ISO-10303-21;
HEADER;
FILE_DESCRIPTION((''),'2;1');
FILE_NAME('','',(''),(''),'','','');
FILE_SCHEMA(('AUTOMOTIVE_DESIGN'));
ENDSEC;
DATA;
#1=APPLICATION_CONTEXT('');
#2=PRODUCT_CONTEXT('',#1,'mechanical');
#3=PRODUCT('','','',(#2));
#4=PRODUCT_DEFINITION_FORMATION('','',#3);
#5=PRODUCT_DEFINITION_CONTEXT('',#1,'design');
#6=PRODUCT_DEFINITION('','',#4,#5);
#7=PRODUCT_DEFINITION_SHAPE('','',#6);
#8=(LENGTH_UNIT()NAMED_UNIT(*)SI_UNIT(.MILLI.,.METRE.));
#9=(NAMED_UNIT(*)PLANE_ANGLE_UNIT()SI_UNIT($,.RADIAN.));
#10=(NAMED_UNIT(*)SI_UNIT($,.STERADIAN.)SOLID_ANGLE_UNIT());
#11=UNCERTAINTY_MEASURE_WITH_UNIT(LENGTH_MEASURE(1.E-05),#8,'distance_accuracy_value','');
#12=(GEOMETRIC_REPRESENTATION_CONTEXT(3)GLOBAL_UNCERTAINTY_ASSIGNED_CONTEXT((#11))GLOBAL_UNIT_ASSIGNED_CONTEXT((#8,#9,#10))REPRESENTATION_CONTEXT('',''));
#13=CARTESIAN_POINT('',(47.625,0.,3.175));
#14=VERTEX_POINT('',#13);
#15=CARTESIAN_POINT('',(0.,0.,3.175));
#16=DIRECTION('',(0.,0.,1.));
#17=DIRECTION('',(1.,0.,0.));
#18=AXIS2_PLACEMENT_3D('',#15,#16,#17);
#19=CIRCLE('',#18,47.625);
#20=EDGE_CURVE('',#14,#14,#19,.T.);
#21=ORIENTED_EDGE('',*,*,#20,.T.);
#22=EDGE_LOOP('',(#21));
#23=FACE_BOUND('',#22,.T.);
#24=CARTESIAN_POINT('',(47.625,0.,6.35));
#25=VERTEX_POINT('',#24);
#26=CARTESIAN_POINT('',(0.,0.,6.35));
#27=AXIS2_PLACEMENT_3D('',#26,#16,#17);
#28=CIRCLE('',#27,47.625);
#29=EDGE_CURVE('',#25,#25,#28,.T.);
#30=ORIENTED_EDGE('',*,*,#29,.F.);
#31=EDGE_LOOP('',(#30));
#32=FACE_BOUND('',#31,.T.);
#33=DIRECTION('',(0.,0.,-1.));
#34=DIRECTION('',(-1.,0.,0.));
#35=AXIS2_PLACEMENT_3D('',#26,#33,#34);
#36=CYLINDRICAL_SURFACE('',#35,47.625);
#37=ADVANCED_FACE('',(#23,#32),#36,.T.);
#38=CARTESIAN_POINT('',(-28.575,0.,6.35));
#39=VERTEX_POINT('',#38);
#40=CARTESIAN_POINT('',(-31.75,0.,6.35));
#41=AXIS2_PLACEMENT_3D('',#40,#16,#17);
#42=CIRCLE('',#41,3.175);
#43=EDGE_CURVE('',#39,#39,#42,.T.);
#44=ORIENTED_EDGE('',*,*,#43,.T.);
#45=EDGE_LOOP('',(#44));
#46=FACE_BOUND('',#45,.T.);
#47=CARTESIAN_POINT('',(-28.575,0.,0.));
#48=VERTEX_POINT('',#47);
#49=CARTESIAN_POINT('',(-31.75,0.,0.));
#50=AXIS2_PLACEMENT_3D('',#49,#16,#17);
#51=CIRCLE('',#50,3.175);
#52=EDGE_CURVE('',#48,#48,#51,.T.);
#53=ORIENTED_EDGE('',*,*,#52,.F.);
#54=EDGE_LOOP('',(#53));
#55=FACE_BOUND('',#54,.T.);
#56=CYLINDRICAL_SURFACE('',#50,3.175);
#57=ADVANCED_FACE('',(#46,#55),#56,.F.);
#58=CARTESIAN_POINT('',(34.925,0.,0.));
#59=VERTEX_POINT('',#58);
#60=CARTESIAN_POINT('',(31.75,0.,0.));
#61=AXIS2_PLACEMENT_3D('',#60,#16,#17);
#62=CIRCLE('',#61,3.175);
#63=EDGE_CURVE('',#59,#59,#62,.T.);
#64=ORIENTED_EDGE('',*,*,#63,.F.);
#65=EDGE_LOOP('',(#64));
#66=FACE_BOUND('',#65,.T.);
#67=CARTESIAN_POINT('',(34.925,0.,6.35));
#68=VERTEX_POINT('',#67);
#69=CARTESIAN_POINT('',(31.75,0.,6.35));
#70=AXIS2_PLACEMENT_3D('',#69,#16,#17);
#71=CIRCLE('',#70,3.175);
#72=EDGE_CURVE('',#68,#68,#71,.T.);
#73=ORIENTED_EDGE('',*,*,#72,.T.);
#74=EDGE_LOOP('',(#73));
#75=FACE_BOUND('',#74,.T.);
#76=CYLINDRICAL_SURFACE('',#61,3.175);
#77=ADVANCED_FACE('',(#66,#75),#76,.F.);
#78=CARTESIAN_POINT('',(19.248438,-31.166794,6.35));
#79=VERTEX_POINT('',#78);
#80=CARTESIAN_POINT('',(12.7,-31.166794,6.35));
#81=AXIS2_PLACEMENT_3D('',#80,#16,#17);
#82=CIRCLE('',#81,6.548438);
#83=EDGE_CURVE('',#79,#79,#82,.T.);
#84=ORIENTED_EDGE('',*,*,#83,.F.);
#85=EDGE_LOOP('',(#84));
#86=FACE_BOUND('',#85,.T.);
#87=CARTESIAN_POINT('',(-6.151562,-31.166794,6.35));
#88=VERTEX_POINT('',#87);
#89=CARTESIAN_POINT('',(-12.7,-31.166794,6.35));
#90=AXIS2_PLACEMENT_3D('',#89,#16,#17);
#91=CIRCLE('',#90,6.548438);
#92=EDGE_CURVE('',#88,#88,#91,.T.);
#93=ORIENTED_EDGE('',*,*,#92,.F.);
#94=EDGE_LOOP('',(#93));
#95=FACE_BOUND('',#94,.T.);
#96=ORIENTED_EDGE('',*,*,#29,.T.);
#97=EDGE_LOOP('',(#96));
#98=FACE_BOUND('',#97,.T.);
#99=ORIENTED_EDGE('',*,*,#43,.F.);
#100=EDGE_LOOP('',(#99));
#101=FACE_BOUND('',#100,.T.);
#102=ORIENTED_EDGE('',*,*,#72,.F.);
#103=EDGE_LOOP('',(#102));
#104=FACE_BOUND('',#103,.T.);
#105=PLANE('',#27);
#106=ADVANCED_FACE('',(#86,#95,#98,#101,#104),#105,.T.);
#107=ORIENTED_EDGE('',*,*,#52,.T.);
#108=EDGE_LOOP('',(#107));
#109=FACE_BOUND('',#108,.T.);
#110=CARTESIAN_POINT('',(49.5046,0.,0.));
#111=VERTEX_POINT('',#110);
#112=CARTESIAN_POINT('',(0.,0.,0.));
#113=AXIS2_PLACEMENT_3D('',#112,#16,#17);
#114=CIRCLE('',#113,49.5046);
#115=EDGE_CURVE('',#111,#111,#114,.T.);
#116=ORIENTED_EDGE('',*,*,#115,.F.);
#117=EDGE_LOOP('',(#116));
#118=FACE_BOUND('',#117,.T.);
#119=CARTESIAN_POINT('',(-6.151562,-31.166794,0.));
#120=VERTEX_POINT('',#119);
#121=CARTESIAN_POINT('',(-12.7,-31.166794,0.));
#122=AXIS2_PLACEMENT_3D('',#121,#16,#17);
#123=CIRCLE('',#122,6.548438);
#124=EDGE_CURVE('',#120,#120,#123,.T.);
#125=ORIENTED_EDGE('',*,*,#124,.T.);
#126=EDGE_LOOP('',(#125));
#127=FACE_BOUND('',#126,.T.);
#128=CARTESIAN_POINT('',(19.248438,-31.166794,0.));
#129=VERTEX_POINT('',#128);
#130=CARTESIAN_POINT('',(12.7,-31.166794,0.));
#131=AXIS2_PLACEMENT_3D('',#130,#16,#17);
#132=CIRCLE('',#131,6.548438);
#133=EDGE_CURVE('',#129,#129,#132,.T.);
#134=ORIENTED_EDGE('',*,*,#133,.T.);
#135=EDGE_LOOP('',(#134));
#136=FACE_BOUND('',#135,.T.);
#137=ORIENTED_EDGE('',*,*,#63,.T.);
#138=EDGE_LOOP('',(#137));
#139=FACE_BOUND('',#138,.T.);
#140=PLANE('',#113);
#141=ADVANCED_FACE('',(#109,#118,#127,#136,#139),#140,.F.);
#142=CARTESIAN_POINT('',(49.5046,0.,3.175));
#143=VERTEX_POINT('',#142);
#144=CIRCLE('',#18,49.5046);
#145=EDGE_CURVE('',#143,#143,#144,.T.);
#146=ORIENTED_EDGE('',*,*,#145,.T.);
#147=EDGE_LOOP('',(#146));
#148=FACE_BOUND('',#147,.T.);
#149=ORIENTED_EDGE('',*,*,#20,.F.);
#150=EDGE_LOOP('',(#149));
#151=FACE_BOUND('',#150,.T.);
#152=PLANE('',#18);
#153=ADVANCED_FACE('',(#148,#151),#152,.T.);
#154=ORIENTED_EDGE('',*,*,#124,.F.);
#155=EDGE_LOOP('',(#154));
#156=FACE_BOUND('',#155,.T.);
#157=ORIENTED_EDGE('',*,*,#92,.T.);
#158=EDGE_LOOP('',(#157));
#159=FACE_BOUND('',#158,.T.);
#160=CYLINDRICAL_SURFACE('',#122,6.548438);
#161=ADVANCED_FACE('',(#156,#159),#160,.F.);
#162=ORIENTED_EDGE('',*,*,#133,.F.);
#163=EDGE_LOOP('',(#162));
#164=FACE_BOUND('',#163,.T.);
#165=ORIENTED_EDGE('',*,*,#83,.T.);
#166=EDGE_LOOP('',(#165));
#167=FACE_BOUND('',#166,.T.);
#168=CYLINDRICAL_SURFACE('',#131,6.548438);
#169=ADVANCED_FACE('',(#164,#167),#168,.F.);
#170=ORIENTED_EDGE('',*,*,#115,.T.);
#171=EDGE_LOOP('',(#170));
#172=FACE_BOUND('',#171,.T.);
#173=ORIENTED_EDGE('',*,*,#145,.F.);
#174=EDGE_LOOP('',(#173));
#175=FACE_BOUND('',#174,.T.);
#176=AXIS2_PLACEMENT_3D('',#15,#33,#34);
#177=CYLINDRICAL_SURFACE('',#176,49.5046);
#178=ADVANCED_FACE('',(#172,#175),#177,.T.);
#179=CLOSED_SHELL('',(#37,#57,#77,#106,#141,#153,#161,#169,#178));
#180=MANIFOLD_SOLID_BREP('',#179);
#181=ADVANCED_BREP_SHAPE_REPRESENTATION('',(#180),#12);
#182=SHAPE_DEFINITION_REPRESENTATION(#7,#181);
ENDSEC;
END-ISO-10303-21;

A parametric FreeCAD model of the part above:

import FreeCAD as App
import Part
import Sketcher
Q = App.Units.Quantity

doc = App.newDocument("Part")
body = doc.addObject("PartDesign::Body", "Body")

sketch1 = doc.addObject("Sketcher::SketchObject", "Sketch")
body.addObject(sketch1)
sketch1.AttachmentSupport = (doc.XY_Plane, [""])
sketch1.MapMode = "FlatFace"
sketch1.addGeometry(Part.Circle(App.Vector(0, 0, 0), App.Vector(0, 0, 1), 50), False)
sketch1.addConstraint([
    Sketcher.Constraint("Coincident", 0, 3, -1, 1),
    Sketcher.Constraint("Diameter", 0, Q("3.898 in")),
])
pad1 = doc.addObject("PartDesign::Pad", "Pad")
body.addObject(pad1)
pad1.Profile = sketch1
pad1.Length = Q("0.125 in")

sketch2 = doc.addObject("Sketcher::SketchObject", "Sketch001")
body.addObject(sketch2)
sketch2.AttachmentSupport = (doc.XY_Plane, [""])
sketch2.MapMode = "FlatFace"
sketch2.AttachmentOffset = App.Placement(App.Vector(0, 0, 0.125 * 25.4), App.Rotation())
sketch2.addGeometry(Part.Circle(App.Vector(0, 0, 0), App.Vector(0, 0, 1), 48), False)
sketch2.addConstraint([
    Sketcher.Constraint("Coincident", 0, 3, -1, 1),
    Sketcher.Constraint("Diameter", 0, Q("3.75 in")),
])
pad2 = doc.addObject("PartDesign::Pad", "Pad001")
body.addObject(pad2)
pad2.Profile = sketch2
pad2.Length = Q("0.125 in")

sketch3 = doc.addObject("Sketcher::SketchObject", "Sketch002")
body.addObject(sketch3)
sketch3.AttachmentSupport = (doc.XY_Plane, [""])
sketch3.MapMode = "FlatFace"
sketch3.AttachmentOffset = App.Placement(App.Vector(0, 0, 0.25 * 25.4), App.Rotation())
sketch3.addGeometry([
    Part.Circle(App.Vector(-12.7, -31.2, 0), App.Vector(0, 0, 1), 6.5),
    Part.Circle(App.Vector(12.7, -31.2, 0), App.Vector(0, 0, 1), 6.5),
    Part.Circle(App.Vector(-31.8, 0, 0), App.Vector(0, 0, 1), 3.2),
    Part.Circle(App.Vector(31.8, 0, 0), App.Vector(0, 0, 1), 3.2),
], False)
sketch3.addConstraint([
    Sketcher.Constraint("Equal", 0, 1),
    Sketcher.Constraint("Equal", 2, 3),
    Sketcher.Constraint("Symmetric", 2, 3, 3, 3, -1, 1),
    Sketcher.Constraint("Symmetric", 0, 3, 1, 3, -2),
    Sketcher.Constraint("PointOnObject", 2, 3, -1),
    Sketcher.Constraint("Diameter", 2, Q("0.25 in")),
    Sketcher.Constraint("Diameter", 0, Q("0.515625 in")),
    Sketcher.Constraint("DistanceX", 0, 3, 1, 3, Q("1 in")),
    Sketcher.Constraint("DistanceX", 2, 3, 3, 3, Q("2.5 in")),
    Sketcher.Constraint("DistanceY", 0, 3, -1, 1, Q("31.166794 mm")),
])
pocket1 = doc.addObject("PartDesign::Pocket", "Pocket")
body.addObject(pocket1)
pocket1.Profile = sketch3
pocket1.Type = "ThroughAll"

doc.recompute()
